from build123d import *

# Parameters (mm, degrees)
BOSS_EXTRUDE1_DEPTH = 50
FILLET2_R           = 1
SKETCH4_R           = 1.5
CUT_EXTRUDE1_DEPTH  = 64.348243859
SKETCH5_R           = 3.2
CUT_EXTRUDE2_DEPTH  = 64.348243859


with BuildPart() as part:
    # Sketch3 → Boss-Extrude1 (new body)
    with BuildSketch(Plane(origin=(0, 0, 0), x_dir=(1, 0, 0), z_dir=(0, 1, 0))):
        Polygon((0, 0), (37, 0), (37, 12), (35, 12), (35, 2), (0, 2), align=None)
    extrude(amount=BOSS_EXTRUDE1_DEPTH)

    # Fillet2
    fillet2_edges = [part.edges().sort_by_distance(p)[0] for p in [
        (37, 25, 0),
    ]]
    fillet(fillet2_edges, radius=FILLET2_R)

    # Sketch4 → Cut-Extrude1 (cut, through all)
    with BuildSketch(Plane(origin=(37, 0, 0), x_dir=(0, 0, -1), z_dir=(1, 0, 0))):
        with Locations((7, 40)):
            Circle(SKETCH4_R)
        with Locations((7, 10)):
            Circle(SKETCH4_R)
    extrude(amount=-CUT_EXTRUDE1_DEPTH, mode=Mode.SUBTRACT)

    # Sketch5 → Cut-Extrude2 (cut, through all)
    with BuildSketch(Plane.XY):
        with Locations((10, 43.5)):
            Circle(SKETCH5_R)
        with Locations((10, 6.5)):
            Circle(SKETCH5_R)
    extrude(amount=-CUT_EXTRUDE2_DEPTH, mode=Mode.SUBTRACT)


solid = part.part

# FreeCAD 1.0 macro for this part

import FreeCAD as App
import Part
import Sketcher
from FreeCAD import Vector
Q = App.Units.Quantity


def edges_at(feature, points):
    """Names of the edges that pass closest to the given points."""
    edges = feature.Shape.Edges
    near = lambda p: min(range(len(edges)), key=lambda i: edges[i].distToShape(Part.Vertex(*p))[0])
    return sorted({f"Edge{near(p) + 1}" for p in points})


def add_polygon(sketch, points):
    """Adds a closed chain of lines whose ends are joined by coincident constraints."""
    first, n = sketch.GeometryCount, len(points)
    for a, b in zip(points, points[1:] + points[:1]):
        sketch.addGeometry(Part.LineSegment(App.Vector(*a, 0), App.Vector(*b, 0)), False)
    for i in range(n):
        sketch.addConstraint(Sketcher.Constraint("Coincident", first + i, 2, first + (i + 1) % n, 1))

doc = App.newDocument("Part")
body = doc.addObject("PartDesign::Body", "Body")

sketch1 = body.newObject("Sketcher::SketchObject", "Sketch")
sketch1.AttachmentSupport = (doc.getObject("XZ_Plane"), [""])
sketch1.MapMode = "FlatFace"
add_polygon(sketch1, [(0, 0), (37, 0), (37, -12), (35, -12), (35, -2), (0, -2)])
sketch1.addConstraint(Sketcher.Constraint("Horizontal", 0))
sketch1.addConstraint(Sketcher.Constraint("Vertical", 1))
sketch1.addConstraint(Sketcher.Constraint("Horizontal", 2))
sketch1.addConstraint(Sketcher.Constraint("Vertical", 3))
sketch1.addConstraint(Sketcher.Constraint("Horizontal", 4))
sketch1.addConstraint(Sketcher.Constraint("Vertical", 5))
sketch1.addConstraint(Sketcher.Constraint("Coincident", 5, 2, -1, 1))
sketch1.addConstraint(Sketcher.Constraint("Equal", 2, 5))
sketch1.addConstraint(Sketcher.Constraint("DistanceX", 0, 1, 0, 2, Q("37 mm")))
sketch1.addConstraint(Sketcher.Constraint("DistanceX", 2, 2, 2, 1, Q("2 mm")))
sketch1.addConstraint(Sketcher.Constraint("DistanceY", 1, 2, 1, 1, Q("12 mm")))
pad1 = body.newObject("PartDesign::Pad", "Pad")
pad1.Profile = sketch1
pad1.Length = 50
pad1.Reversed = True
doc.recompute()

fillet = body.newObject("PartDesign::Fillet", "Fillet")
fillet.Base = (pad1, edges_at(pad1, [(37, 25, 0)]))
fillet.Radius = 1

sketch2 = body.newObject("Sketcher::SketchObject", "Sketch001")
sketch2.AttachmentSupport = (doc.getObject("YZ_Plane"), [""])
sketch2.MapMode = "FlatFace"
sketch2.AttachmentOffset = App.Placement(Vector(0, 0, 37), App.Rotation())
sketch2.addGeometry(Part.Circle(Vector(40, -7, 0), Vector(0, 0, 1), 1.5), False)
sketch2.addGeometry(Part.Circle(Vector(10, -7, 0), Vector(0, 0, 1), 1.5), False)
sketch2.addConstraint(Sketcher.Constraint("Equal", 0, 1))
sketch2.addConstraint(Sketcher.Constraint("Horizontal", 0, 3, 1, 3))
sketch2.addConstraint(Sketcher.Constraint("Diameter", 0, Q("3 mm")))
sketch2.addConstraint(Sketcher.Constraint("DistanceX", -1, 1, 0, 3, Q("40 mm")))
sketch2.addConstraint(Sketcher.Constraint("DistanceY", 0, 3, -1, 1, Q("7 mm")))
sketch2.addConstraint(Sketcher.Constraint("DistanceX", -1, 1, 1, 3, Q("10 mm")))
pocket1 = body.newObject("PartDesign::Pocket", "Pocket")
pocket1.Profile = sketch2
pocket1.Type = "ThroughAll"

sketch3 = body.newObject("Sketcher::SketchObject", "Sketch002")
sketch3.AttachmentSupport = (doc.getObject("XY_Plane"), [""])
sketch3.MapMode = "FlatFace"
sketch3.addGeometry(Part.Circle(Vector(10, 43.5, 0), Vector(0, 0, 1), 3.2), False)
sketch3.addGeometry(Part.Circle(Vector(10, 6.5, 0), Vector(0, 0, 1), 3.2), False)
sketch3.addConstraint(Sketcher.Constraint("Equal", 0, 1))
sketch3.addConstraint(Sketcher.Constraint("Vertical", 0, 3, 1, 3))
sketch3.addConstraint(Sketcher.Constraint("Diameter", 0, Q("6.4 mm")))
sketch3.addConstraint(Sketcher.Constraint("DistanceX", -1, 1, 0, 3, Q("10 mm")))
sketch3.addConstraint(Sketcher.Constraint("DistanceY", 1, 3, 0, 3, Q("37 mm")))
sketch3.addConstraint(Sketcher.Constraint("DistanceY", -1, 1, 0, 3, Q("43.5 mm")))
pocket2 = body.newObject("PartDesign::Pocket", "Pocket001")
pocket2.Profile = sketch3
pocket2.Type = "ThroughAll"

doc.recompute()
